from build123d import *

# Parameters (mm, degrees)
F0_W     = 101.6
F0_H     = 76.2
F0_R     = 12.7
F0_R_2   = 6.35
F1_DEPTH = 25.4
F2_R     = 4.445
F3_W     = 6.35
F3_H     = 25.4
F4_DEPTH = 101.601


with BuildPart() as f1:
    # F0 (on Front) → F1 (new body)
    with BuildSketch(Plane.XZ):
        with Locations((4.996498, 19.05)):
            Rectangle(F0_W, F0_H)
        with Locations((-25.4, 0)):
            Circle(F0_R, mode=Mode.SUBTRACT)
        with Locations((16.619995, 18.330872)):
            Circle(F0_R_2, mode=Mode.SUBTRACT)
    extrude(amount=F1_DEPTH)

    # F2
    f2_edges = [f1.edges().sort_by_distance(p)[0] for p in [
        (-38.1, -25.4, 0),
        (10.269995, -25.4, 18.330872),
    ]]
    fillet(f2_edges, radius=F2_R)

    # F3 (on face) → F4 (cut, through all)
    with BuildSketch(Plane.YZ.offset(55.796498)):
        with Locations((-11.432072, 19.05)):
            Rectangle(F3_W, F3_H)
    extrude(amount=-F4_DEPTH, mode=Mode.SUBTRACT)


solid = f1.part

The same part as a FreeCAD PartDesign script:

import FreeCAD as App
import Part
import Sketcher
from FreeCAD import Vector
Q = App.Units.Quantity


def edges_at(feature, points):
    """Names of the edges that pass closest to the given points."""
    edges = feature.Shape.Edges
    near = lambda p: min(range(len(edges)), key=lambda i: edges[i].distToShape(Part.Vertex(*p))[0])
    return sorted({f"Edge{near(p) + 1}" for p in points})

doc = App.newDocument("Part")
body = doc.addObject("PartDesign::Body", "Body")

sketch1 = doc.addObject("Sketcher::SketchObject", "Sketch")
body.addObject(sketch1)
sketch1.AttachmentSupport = (doc.XZ_Plane, [""])
sketch1.MapMode = "FlatFace"
sketch1.addGeometry(Part.LineSegment(Vector(-46, 57, 0), Vector(-46, -19, 0)), False)
sketch1.addGeometry(Part.LineSegment(Vector(-46, -19, 0), Vector(56, -19, 0)), False)
sketch1.addGeometry(Part.LineSegment(Vector(56, -19, 0), Vector(56, 57, 0)), False)
sketch1.addGeometry(Part.LineSegment(Vector(56, 57, 0), Vector(-46, 57, 0)), False)
sketch1.addGeometry(Part.Circle(Vector(-25, 0, 0), Vector(0, 0, 1), 13), False)
sketch1.addGeometry(Part.Circle(Vector(17, 18, 0), Vector(0, 0, 1), 6), False)
sketch1.addConstraint(Sketcher.Constraint("Coincident", 0, 2, 1, 1))
sketch1.addConstraint(Sketcher.Constraint("Coincident", 1, 2, 2, 1))
sketch1.addConstraint(Sketcher.Constraint("Coincident", 2, 2, 3, 1))
sketch1.addConstraint(Sketcher.Constraint("Coincident", 3, 2, 0, 1))
sketch1.addConstraint(Sketcher.Constraint("Vertical", 0))
sketch1.addConstraint(Sketcher.Constraint("Horizontal", 1))
sketch1.addConstraint(Sketcher.Constraint("Vertical", 2))
sketch1.addConstraint(Sketcher.Constraint("Horizontal", 3))
sketch1.addConstraint(Sketcher.Constraint("PointOnObject", 4, 3, -1))
sketch1.addConstraint(Sketcher.Constraint("Diameter", 4, Q("1 in")))
sketch1.addConstraint(Sketcher.Constraint("Diameter", 5, Q("0.5 in")))
sketch1.addConstraint(Sketcher.Constraint("DistanceX", 1, 1, 1, 2, Q("4 in")))
sketch1.addConstraint(Sketcher.Constraint("DistanceY", 0, 2, 0, 1, Q("3 in")))
sketch1.addConstraint(Sketcher.Constraint("DistanceX", 4, 3, -1, 1, Q("1 in")))
sketch1.addConstraint(Sketcher.Constraint("DistanceY", 0, 2, -1, 1, Q("0.75 in")))
sketch1.addConstraint(Sketcher.Constraint("DistanceY", -1, 1, 5, 3, 18.330872))
sketch1.addConstraint(Sketcher.Constraint("DistanceX", -1, 1, 5, 3, 16.619995))
sketch1.addConstraint(Sketcher.Constraint("DistanceX", 0, 2, -1, 1, 45.803502))
pad1 = doc.addObject("PartDesign::Pad", "Pad")
body.addObject(pad1)
pad1.Profile = sketch1
pad1.Length = Q("1 in")
doc.recompute()

fillet = doc.addObject("PartDesign::Fillet", "Fillet")
body.addObject(fillet)
fillet.Base = (pad1, edges_at(pad1, [(-38.1, -25.4, 0), (10.27, -25.4, 18.331)]))
fillet.Radius = Q("0.175 in")

sketch2 = doc.addObject("Sketcher::SketchObject", "Sketch001")
body.addObject(sketch2)
sketch2.AttachmentSupport = (doc.YZ_Plane, [""])
sketch2.MapMode = "FlatFace"
sketch2.AttachmentOffset = App.Placement(Vector(0, 0, 55.796498), App.Rotation())
sketch2.addGeometry(Part.LineSegment(Vector(-15, 32, 0), Vector(-15, 6, 0)), False)
sketch2.addGeometry(Part.LineSegment(Vector(-15, 6, 0), Vector(-8, 6, 0)), False)
sketch2.addGeometry(Part.LineSegment(Vector(-8, 6, 0), Vector(-8, 32, 0)), False)
sketch2.addGeometry(Part.LineSegment(Vector(-8, 32, 0), Vector(-15, 32, 0)), False)
sketch2.addConstraint(Sketcher.Constraint("Coincident", 0, 2, 1, 1))
sketch2.addConstraint(Sketcher.Constraint("Coincident", 1, 2, 2, 1))
sketch2.addConstraint(Sketcher.Constraint("Coincident", 2, 2, 3, 1))
sketch2.addConstraint(Sketcher.Constraint("Coincident", 3, 2, 0, 1))
sketch2.addConstraint(Sketcher.Constraint("Vertical", 0))
sketch2.addConstraint(Sketcher.Constraint("Horizontal", 1))
sketch2.addConstraint(Sketcher.Constraint("Vertical", 2))
sketch2.addConstraint(Sketcher.Constraint("Horizontal", 3))
sketch2.addConstraint(Sketcher.Constraint("DistanceY", 0, 2, 0, 1, Q("1 in")))
sketch2.addConstraint(Sketcher.Constraint("DistanceX", 1, 1, 1, 2, Q("0.25 in")))
sketch2.addConstraint(Sketcher.Constraint("DistanceY", -1, 1, 0, 2, Q("0.25 in")))
sketch2.addConstraint(Sketcher.Constraint("DistanceX", 0, 2, -1, 1, 14.607072))
pocket1 = doc.addObject("PartDesign::Pocket", "Pocket")
body.addObject(pocket1)
pocket1.Profile = sketch2
pocket1.Type = "ThroughAll"

doc.recompute()
